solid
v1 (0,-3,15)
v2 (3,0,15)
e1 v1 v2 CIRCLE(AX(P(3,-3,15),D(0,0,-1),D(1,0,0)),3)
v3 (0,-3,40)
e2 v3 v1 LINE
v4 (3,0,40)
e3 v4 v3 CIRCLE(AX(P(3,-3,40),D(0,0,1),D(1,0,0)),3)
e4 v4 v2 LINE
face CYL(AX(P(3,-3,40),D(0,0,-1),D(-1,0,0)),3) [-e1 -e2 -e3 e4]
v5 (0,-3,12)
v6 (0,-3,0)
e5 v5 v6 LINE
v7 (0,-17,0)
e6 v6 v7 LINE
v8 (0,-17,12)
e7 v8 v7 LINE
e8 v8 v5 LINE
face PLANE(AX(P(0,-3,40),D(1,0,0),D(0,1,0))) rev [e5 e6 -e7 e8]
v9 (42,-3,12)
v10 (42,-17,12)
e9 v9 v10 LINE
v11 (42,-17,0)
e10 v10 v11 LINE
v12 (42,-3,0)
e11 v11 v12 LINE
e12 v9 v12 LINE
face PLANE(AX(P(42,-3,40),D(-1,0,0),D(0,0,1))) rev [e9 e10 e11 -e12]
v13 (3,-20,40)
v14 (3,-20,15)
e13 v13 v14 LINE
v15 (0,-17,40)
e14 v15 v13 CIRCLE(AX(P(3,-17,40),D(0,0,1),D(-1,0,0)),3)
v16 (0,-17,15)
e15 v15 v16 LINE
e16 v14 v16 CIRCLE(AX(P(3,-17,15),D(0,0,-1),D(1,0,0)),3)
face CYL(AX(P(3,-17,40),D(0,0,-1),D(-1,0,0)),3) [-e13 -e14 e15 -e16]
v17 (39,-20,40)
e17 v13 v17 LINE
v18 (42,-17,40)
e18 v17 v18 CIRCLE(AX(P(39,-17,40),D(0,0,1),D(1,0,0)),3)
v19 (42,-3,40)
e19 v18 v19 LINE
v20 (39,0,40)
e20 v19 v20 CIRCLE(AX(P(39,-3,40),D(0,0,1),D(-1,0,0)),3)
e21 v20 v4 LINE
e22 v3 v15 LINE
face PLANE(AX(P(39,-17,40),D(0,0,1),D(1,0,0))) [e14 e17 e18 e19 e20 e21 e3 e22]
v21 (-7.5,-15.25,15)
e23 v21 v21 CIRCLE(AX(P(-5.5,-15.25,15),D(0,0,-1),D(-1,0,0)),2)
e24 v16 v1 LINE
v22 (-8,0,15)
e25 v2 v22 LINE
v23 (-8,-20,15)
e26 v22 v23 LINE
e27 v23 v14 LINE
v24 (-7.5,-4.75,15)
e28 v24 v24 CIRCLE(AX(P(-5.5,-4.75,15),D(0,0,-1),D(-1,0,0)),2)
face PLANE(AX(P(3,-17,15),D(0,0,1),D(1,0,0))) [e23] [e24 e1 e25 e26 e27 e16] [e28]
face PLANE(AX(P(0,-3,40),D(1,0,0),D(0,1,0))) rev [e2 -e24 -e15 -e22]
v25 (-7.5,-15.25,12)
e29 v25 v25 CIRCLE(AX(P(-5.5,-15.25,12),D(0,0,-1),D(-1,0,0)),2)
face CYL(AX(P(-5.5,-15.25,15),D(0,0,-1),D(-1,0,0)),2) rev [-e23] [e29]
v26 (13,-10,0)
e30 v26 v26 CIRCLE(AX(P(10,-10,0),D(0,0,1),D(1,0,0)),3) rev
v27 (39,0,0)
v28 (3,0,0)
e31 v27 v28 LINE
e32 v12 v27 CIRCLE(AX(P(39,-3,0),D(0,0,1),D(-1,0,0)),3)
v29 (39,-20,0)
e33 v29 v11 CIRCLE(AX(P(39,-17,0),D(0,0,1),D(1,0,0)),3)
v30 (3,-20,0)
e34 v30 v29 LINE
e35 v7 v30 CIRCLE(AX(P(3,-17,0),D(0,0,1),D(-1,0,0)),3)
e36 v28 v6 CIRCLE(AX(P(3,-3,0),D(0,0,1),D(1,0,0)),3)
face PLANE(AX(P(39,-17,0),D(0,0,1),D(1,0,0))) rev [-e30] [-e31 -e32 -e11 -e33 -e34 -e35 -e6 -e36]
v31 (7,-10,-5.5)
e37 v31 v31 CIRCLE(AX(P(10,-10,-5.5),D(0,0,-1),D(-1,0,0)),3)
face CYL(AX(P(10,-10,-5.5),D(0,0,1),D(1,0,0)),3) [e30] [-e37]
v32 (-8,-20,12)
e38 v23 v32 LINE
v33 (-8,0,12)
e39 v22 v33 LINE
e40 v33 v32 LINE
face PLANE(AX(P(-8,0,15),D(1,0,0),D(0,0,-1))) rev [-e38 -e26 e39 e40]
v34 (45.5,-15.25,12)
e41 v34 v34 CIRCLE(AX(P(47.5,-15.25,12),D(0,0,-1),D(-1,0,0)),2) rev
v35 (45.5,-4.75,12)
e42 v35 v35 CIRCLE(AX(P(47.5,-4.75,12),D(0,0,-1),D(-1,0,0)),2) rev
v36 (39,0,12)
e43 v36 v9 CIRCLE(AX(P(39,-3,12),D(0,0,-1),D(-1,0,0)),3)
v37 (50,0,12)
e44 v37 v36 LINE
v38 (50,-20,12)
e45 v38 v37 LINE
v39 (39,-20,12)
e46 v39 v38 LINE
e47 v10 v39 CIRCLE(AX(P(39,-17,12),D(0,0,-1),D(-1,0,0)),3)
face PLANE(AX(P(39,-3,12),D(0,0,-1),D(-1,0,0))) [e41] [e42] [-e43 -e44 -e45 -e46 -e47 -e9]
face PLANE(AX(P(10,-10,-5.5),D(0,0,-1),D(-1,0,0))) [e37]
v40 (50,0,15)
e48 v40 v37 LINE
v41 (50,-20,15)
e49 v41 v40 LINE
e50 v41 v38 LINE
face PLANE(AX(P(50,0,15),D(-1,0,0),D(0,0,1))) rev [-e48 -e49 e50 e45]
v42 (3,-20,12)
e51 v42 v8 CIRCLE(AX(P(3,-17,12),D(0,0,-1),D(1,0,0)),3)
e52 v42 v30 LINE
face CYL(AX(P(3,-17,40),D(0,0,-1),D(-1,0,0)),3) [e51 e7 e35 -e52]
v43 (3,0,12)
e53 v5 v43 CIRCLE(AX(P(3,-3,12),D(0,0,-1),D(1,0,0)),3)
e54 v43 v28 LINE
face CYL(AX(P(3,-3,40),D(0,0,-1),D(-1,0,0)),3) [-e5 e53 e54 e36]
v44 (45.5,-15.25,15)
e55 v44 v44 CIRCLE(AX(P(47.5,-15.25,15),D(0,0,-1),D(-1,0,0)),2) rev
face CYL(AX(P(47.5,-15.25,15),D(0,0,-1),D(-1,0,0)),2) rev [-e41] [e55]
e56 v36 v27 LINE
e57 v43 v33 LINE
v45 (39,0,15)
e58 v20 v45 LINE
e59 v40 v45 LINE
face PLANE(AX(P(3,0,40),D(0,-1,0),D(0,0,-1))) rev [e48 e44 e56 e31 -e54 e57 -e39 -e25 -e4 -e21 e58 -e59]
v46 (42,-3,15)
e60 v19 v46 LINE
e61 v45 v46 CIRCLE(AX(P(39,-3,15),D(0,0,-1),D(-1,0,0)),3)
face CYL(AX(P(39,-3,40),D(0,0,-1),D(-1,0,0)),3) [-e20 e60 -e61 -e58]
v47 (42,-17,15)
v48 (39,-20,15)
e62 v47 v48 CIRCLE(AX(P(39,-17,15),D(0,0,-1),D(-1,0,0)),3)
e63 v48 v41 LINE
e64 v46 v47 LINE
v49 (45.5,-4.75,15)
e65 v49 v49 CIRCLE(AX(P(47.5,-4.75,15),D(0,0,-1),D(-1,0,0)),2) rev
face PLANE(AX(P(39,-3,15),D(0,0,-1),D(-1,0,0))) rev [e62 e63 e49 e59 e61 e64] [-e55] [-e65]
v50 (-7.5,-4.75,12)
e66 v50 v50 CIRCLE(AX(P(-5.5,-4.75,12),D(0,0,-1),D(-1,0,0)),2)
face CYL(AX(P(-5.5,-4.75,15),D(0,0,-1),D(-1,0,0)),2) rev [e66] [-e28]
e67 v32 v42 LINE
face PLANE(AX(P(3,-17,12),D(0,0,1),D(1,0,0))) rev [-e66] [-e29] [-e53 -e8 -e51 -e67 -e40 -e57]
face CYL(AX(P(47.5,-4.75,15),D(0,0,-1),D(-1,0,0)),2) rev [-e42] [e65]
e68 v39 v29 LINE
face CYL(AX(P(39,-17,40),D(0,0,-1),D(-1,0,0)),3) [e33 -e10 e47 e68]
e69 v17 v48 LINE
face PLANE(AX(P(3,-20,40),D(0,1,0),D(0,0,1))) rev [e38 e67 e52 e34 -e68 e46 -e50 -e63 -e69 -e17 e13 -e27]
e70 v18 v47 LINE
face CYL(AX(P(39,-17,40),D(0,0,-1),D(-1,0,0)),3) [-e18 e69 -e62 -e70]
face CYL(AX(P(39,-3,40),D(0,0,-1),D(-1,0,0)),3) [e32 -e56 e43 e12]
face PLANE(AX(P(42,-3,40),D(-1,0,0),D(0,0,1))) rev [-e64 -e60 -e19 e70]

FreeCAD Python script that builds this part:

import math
import FreeCAD as App
import Part
import Sketcher

V = App.Vector

doc = App.newDocument("Part")
params = doc.addObject("Spreadsheet::Sheet", "Params")
for row, (alias, value) in enumerate([
    ("sketch1_radius", "3 mm"),
    ("sketch1_width", "36 mm"),
    ("sketch1_height", "14 mm"),
    ("pad1_length", "40 mm"),
    ("sketch2_radius", "3 mm"),
    ("sketch2_width", "11 mm"),
    ("sketch2_height", "20 mm"),
    ("pad2_length", "3 mm"),
    ("sketch3_diameter", "4 mm"),
    ("pocket1_length", "3 mm"),
    ("sketch4_diameter", "6 mm"),
    ("pad3_length", "5.5 mm"),
], start=1):
    params.set(f"A{row}", alias)
    params.set(f"B{row}", "=" + value)
    params.setAlias(f"B{row}", alias)

body = doc.addObject("PartDesign::Body", "Body")

# Sketch on XY plane
sketch1 = body.newObject("Sketcher::SketchObject", "Sketch")
sketch1.AttachmentSupport = (doc.getObject("XY_Plane"), [""])
sketch1.MapMode = "FlatFace"
sketch1.addGeometry(Part.LineSegment(V(39, 0, 0), V(3, 0, 0)), False)
sketch1.addGeometry(Part.ArcOfCircle(Part.Circle(V(3, -3, 0), V(0, 0, 1), 3), math.radians(90), math.radians(180)), False)
sketch1.addGeometry(Part.LineSegment(V(0, -3, 0), V(0, -17, 0)), False)
sketch1.addGeometry(Part.ArcOfCircle(Part.Circle(V(3, -17, 0), V(0, 0, 1), 3), math.radians(180), math.radians(270)), False)
sketch1.addGeometry(Part.LineSegment(V(3, -20, 0), V(39, -20, 0)), False)
sketch1.addGeometry(Part.ArcOfCircle(Part.Circle(V(39, -17, 0), V(0, 0, 1), 3), math.radians(-90), math.radians(0)), False)
sketch1.addGeometry(Part.LineSegment(V(42, -17, 0), V(42, -3, 0)), False)
sketch1.addGeometry(Part.ArcOfCircle(Part.Circle(V(39, -3, 0), V(0, 0, 1), 3), math.radians(0), math.radians(90)), False)
sketch1.addConstraint(Sketcher.Constraint("Tangent", 0, 2, 1, 1))
sketch1.addConstraint(Sketcher.Constraint("Tangent", 1, 2, 2, 1))
sketch1.addConstraint(Sketcher.Constraint("Tangent", 2, 2, 3, 1))
sketch1.addConstraint(Sketcher.Constraint("Tangent", 3, 2, 4, 1))
sketch1.addConstraint(Sketcher.Constraint("Tangent", 4, 2, 5, 1))
sketch1.addConstraint(Sketcher.Constraint("Tangent", 5, 2, 6, 1))
sketch1.addConstraint(Sketcher.Constraint("Tangent", 6, 2, 7, 1))
sketch1.addConstraint(Sketcher.Constraint("Tangent", 7, 2, 0, 1))
sketch1.addConstraint(Sketcher.Constraint("Horizontal", 0))
sketch1.addConstraint(Sketcher.Constraint("Vertical", 2))
sketch1.addConstraint(Sketcher.Constraint("Horizontal", 4))
sketch1.addConstraint(Sketcher.Constraint("Vertical", 6))
sketch1.addConstraint(Sketcher.Constraint("Equal", 1, 3))
sketch1.addConstraint(Sketcher.Constraint("Equal", 3, 5))
sketch1.addConstraint(Sketcher.Constraint("Equal", 5, 7))
sketch1.addConstraint(Sketcher.Constraint("PointOnObject", 0, 2, -1))
sketch1.addConstraint(Sketcher.Constraint("PointOnObject", 1, 2, -2))
sketch1.addConstraint(Sketcher.Constraint("Radius", 1, 3.0))
sketch1.addConstraint(Sketcher.Constraint("DistanceX", 0, 2, 0, 1, 36.0))
sketch1.addConstraint(Sketcher.Constraint("DistanceY", 2, 2, 2, 1, 14.0))
sketch1.setExpression("Constraints[17]", "Params.sketch1_radius")
sketch1.setExpression("Constraints[18]", "Params.sketch1_width")
sketch1.setExpression("Constraints[19]", "Params.sketch1_height")
pad1 = body.newObject("PartDesign::Pad", "Pad")
pad1.Profile = sketch1
pad1.setExpression("Length", "Params.pad1_length")

# Sketch on XY plane
sketch2 = body.newObject("Sketcher::SketchObject", "Sketch001")
sketch2.AttachmentSupport = (doc.getObject("XY_Plane"), [""])
sketch2.MapMode = "FlatFace"
sketch2.AttachmentOffset = App.Placement(V(0, 0, 12), App.Rotation())
sketch2.addGeometry(Part.LineSegment(V(3, 0, 0), V(-8, 0, 0)), False)
sketch2.addGeometry(Part.LineSegment(V(-8, 0, 0), V(-8, -20, 0)), False)
sketch2.addGeometry(Part.LineSegment(V(-8, -20, 0), V(3, -20, 0)), False)
sketch2.addGeometry(Part.ArcOfCircle(Part.Circle(V(3, -17, 0), V(0, 0, 1), 3), math.radians(180), math.radians(270)), False)
sketch2.addGeometry(Part.LineSegment(V(0, -17, 0), V(0, -3, 0)), False)
sketch2.addGeometry(Part.ArcOfCircle(Part.Circle(V(3, -3, 0), V(0, 0, 1), 3), math.radians(90), math.radians(180)), False)
sketch2.addGeometry(Part.LineSegment(V(42, -3, 0), V(42, -17, 0)), False)
sketch2.addGeometry(Part.ArcOfCircle(Part.Circle(V(39, -17, 0), V(0, 0, 1), 3), math.radians(-90), math.radians(0)), False)
sketch2.addGeometry(Part.LineSegment(V(39, -20, 0), V(50, -20, 0)), False)
sketch2.addGeometry(Part.LineSegment(V(50, -20, 0), V(50, 0, 0)), False)
sketch2.addGeometry(Part.LineSegment(V(50, 0, 0), V(39, 0, 0)), False)
sketch2.addGeometry(Part.ArcOfCircle(Part.Circle(V(39, -3, 0), V(0, 0, 1), 3), math.radians(0), math.radians(90)), False)
sketch2.addConstraint(Sketcher.Constraint("Coincident", 0, 2, 1, 1))
sketch2.addConstraint(Sketcher.Constraint("Coincident", 1, 2, 2, 1))
sketch2.addConstraint(Sketcher.Constraint("Tangent", 2, 2, 3, 2))
sketch2.addConstraint(Sketcher.Constraint("Tangent", 3, 1, 4, 1))
sketch2.addConstraint(Sketcher.Constraint("Tangent", 4, 2, 5, 2))
sketch2.addConstraint(Sketcher.Constraint("Tangent", 5, 1, 0, 1))
sketch2.addConstraint(Sketcher.Constraint("Tangent", 6, 2, 7, 2))
sketch2.addConstraint(Sketcher.Constraint("Tangent", 7, 1, 8, 1))
sketch2.addConstraint(Sketcher.Constraint("Coincident", 8, 2, 9, 1))
sketch2.addConstraint(Sketcher.Constraint("Coincident", 9, 2, 10, 1))
sketch2.addConstraint(Sketcher.Constraint("Tangent", 10, 2, 11, 2))
sketch2.addConstraint(Sketcher.Constraint("Tangent", 11, 1, 6, 1))
sketch2.addConstraint(Sketcher.Constraint("Horizontal", 0))
sketch2.addConstraint(Sketcher.Constraint("Vertical", 1))
sketch2.addConstraint(Sketcher.Constraint("Horizontal", 2))
sketch2.addConstraint(Sketcher.Constraint("Vertical", 4))
sketch2.addConstraint(Sketcher.Constraint("Vertical", 6))
sketch2.addConstraint(Sketcher.Constraint("Horizontal", 8))
sketch2.addConstraint(Sketcher.Constraint("Vertical", 9))
sketch2.addConstraint(Sketcher.Constraint("Horizontal", 10))
sketch2.addConstraint(Sketcher.Constraint("Equal", 3, 5))
sketch2.addConstraint(Sketcher.Constraint("Equal", 5, 7))
sketch2.addConstraint(Sketcher.Constraint("Equal", 7, 11))
sketch2.addConstraint(Sketcher.Constraint("PointOnObject", 0, 2, -1))
sketch2.addConstraint(Sketcher.Constraint("PointOnObject", 3, 1, -2))
sketch2.addConstraint(Sketcher.Constraint("PointOnObject", 9, 2, -1))
sketch2.addConstraint(Sketcher.Constraint("Horizontal", 3, 3, 7, 3))
sketch2.addConstraint(Sketcher.Constraint("Equal", 2, 8))
sketch2.addConstraint(Sketcher.Constraint("Radius", 3, 3.0))
sketch2.addConstraint(Sketcher.Constraint("DistanceX", 0, 2, 0, 1, 11.0))
sketch2.addConstraint(Sketcher.Constraint("DistanceY", 1, 2, 1, 1, 20.0))
sketch2.addConstraint(Sketcher.Constraint("DistanceX", -1, 1, 7, 3, 39.0))
sketch2.setExpression("Constraints[28]", "Params.sketch2_radius")
sketch2.setExpression("Constraints[29]", "Params.sketch2_width")
sketch2.setExpression("Constraints[30]", "Params.sketch2_height")
pad2 = body.newObject("PartDesign::Pad", "Pad001")
pad2.Profile = sketch2
pad2.setExpression("Length", "Params.pad2_length")

# Sketch on XY plane
sketch3 = body.newObject("Sketcher::SketchObject", "Sketch002")
sketch3.AttachmentSupport = (doc.getObject("XY_Plane"), [""])
sketch3.MapMode = "FlatFace"
sketch3.AttachmentOffset = App.Placement(V(0, 0, 12), App.Rotation())
sketch3.addGeometry(Part.Circle(V(-5.5, -4.8, 0), V(0, 0, 1), 2), False)
sketch3.addGeometry(Part.Circle(V(-5.5, -15.2, 0), V(0, 0, 1), 2), False)
sketch3.addGeometry(Part.Circle(V(47.5, -4.8, 0), V(0, 0, 1), 2), False)
sketch3.addGeometry(Part.Circle(V(47.5, -15.2, 0), V(0, 0, 1), 2), False)
sketch3.addConstraint(Sketcher.Constraint("Equal", 0, 1))
sketch3.addConstraint(Sketcher.Constraint("Equal", 1, 2))
sketch3.addConstraint(Sketcher.Constraint("Equal", 2, 3))
sketch3.addConstraint(Sketcher.Constraint("Horizontal", 0, 3, 2, 3))
sketch3.addConstraint(Sketcher.Constraint("Horizontal", 1, 3, 3, 3))
sketch3.addConstraint(Sketcher.Constraint("Vertical", 0, 3, 1, 3))
sketch3.addConstraint(Sketcher.Constraint("Vertical", 2, 3, 3, 3))
sketch3.addConstraint(Sketcher.Constraint("Diameter", 0, 4.0))
sketch3.addConstraint(Sketcher.Constraint("DistanceX", 0, 3, 2, 3, 53.0))
sketch3.addConstraint(Sketcher.Constraint("DistanceX", 0, 3, -1, 1, 5.5))
sketch3.addConstraint(Sketcher.Constraint("DistanceY", 1, 3, 0, 3, 10.5))
sketch3.addConstraint(Sketcher.Constraint("DistanceY", 0, 3, -1, 1, 4.75))
sketch3.setExpression("Constraints[7]", "Params.sketch3_diameter")
pocket1 = body.newObject("PartDesign::Pocket", "Pocket")
pocket1.Profile = sketch3
pocket1.setExpression("Length", "Params.pocket1_length")
pocket1.Reversed = True

# Sketch on XY plane
sketch4 = body.newObject("Sketcher::SketchObject", "Sketch003")
sketch4.AttachmentSupport = (doc.getObject("XY_Plane"), [""])
sketch4.MapMode = "FlatFace"
sketch4.addGeometry(Part.Circle(V(10, -10, 0), V(0, 0, 1), 3), False)
sketch4.addConstraint(Sketcher.Constraint("Diameter", 0, 6.0))
sketch4.addConstraint(Sketcher.Constraint("DistanceX", -1, 1, 0, 3, 10.0))
sketch4.addConstraint(Sketcher.Constraint("DistanceY", 0, 3, -1, 1, 10.0))
sketch4.setExpression("Constraints[0]", "Params.sketch4_diameter")
pad3 = body.newObject("PartDesign::Pad", "Pad002")
pad3.Profile = sketch4
pad3.setExpression("Length", "Params.pad3_length")
pad3.Reversed = True

doc.recompute()
